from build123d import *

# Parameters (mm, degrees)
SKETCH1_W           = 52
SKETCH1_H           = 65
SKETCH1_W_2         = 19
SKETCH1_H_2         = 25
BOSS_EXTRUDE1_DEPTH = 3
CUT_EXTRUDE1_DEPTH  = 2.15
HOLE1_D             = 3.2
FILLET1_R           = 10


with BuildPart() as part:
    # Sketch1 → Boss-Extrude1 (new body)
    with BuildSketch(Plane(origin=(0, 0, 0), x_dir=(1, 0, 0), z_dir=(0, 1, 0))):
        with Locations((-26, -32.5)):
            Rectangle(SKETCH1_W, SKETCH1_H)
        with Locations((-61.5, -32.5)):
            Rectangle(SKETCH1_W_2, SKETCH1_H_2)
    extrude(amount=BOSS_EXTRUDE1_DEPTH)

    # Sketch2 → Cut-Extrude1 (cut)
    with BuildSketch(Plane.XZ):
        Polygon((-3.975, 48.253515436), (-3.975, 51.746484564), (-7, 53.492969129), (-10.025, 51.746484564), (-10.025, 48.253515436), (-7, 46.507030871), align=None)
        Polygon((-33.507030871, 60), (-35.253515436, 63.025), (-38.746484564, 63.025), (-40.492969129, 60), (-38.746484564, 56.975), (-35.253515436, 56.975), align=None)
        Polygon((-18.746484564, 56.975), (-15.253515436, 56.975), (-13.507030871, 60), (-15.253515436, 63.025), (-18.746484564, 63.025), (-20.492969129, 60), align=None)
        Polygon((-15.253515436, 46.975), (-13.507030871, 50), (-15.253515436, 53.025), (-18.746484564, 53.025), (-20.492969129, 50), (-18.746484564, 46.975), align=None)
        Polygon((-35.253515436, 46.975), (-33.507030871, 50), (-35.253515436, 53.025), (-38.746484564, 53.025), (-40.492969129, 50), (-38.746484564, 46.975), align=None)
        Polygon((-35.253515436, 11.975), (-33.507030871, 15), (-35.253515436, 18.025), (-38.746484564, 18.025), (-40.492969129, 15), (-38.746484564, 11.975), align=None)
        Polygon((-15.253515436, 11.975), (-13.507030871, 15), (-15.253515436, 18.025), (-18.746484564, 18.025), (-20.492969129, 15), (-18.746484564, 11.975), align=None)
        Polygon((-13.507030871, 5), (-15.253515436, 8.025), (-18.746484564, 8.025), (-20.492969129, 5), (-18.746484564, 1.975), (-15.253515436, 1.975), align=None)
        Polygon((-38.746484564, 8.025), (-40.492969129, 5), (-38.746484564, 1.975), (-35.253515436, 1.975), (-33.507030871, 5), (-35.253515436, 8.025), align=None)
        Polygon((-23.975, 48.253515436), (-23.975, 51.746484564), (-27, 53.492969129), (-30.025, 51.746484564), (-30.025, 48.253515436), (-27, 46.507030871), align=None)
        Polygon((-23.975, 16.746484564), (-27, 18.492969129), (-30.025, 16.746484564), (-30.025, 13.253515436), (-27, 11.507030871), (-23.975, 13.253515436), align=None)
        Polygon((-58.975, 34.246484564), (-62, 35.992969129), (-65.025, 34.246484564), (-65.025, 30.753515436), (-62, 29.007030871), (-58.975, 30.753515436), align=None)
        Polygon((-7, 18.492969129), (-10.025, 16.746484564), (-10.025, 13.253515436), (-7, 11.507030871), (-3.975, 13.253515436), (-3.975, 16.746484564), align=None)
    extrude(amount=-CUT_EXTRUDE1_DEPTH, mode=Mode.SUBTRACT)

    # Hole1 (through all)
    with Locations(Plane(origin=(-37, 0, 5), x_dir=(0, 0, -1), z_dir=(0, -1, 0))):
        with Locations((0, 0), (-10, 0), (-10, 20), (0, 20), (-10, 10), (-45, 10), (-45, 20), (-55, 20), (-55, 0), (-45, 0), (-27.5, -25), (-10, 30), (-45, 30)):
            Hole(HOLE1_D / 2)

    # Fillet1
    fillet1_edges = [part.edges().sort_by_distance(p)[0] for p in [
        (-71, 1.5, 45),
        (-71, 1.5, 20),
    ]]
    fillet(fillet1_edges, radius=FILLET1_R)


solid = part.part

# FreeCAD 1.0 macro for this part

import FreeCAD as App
import Part
import Sketcher
Q = App.Units.Quantity


def edges_at(feature, points):
    """Names of the edges that pass closest to the given points."""
    edges = feature.Shape.Edges
    near = lambda p: min(range(len(edges)), key=lambda i: edges[i].distToShape(Part.Vertex(*p))[0])
    return sorted({f"Edge{near(p) + 1}" for p in points})

doc = App.newDocument("Part")
body = doc.addObject("PartDesign::Body", "Body")

sketch1 = doc.addObject("Sketcher::SketchObject", "Sketch")
body.addObject(sketch1)
sketch1.AttachmentSupport = (doc.XZ_Plane, [""])
sketch1.MapMode = "FlatFace"
sketch1.addGeometry(Part.LineSegment(App.Vector(-52, 45, 0), App.Vector(-52, 65, 0)), False)
sketch1.addGeometry(Part.LineSegment(App.Vector(-52, 65, 0), App.Vector(0, 65, 0)), False)
sketch1.addGeometry(Part.LineSegment(App.Vector(0, 65, 0), App.Vector(0, 0, 0)), False)
sketch1.addGeometry(Part.LineSegment(App.Vector(0, 0, 0), App.Vector(-52, 0, 0)), False)
sketch1.addGeometry(Part.LineSegment(App.Vector(-52, 0, 0), App.Vector(-52, 20, 0)), False)
sketch1.addGeometry(Part.LineSegment(App.Vector(-52, 20, 0), App.Vector(-71, 20, 0)), False)
sketch1.addGeometry(Part.LineSegment(App.Vector(-71, 20, 0), App.Vector(-71, 45, 0)), False)
sketch1.addGeometry(Part.LineSegment(App.Vector(-71, 45, 0), App.Vector(-52, 45, 0)), False)
sketch1.addConstraint(Sketcher.Constraint("Coincident", 0, 2, 1, 1))
sketch1.addConstraint(Sketcher.Constraint("Coincident", 1, 2, 2, 1))
sketch1.addConstraint(Sketcher.Constraint("Coincident", 2, 2, 3, 1))
sketch1.addConstraint(Sketcher.Constraint("Coincident", 3, 2, 4, 1))
sketch1.addConstraint(Sketcher.Constraint("Coincident", 4, 2, 5, 1))
sketch1.addConstraint(Sketcher.Constraint("Coincident", 5, 2, 6, 1))
sketch1.addConstraint(Sketcher.Constraint("Coincident", 6, 2, 7, 1))
sketch1.addConstraint(Sketcher.Constraint("Coincident", 7, 2, 0, 1))
sketch1.addConstraint(Sketcher.Constraint("Vertical", 0))
sketch1.addConstraint(Sketcher.Constraint("Horizontal", 1))
sketch1.addConstraint(Sketcher.Constraint("Vertical", 2))
sketch1.addConstraint(Sketcher.Constraint("Horizontal", 3))
sketch1.addConstraint(Sketcher.Constraint("Vertical", 4))
sketch1.addConstraint(Sketcher.Constraint("Horizontal", 5))
sketch1.addConstraint(Sketcher.Constraint("Vertical", 6))
sketch1.addConstraint(Sketcher.Constraint("Horizontal", 7))
sketch1.addConstraint(Sketcher.Constraint("Coincident", 2, 2, -1, 1))
sketch1.addConstraint(Sketcher.Constraint("Vertical", 0, 2, 3, 2))
sketch1.addConstraint(Sketcher.Constraint("Equal", 0, 4))
sketch1.addConstraint(Sketcher.Constraint("DistanceX", 1, 1, 1, 2, Q("52 mm")))
sketch1.addConstraint(Sketcher.Constraint("DistanceX", 5, 2, 5, 1, Q("19 mm")))
sketch1.addConstraint(Sketcher.Constraint("DistanceY", 0, 1, 0, 2, Q("20 mm")))
sketch1.addConstraint(Sketcher.Constraint("DistanceY", 2, 2, 2, 1, Q("65 mm")))
pad1 = doc.addObject("PartDesign::Pad", "Pad")
body.addObject(pad1)
pad1.Profile = sketch1
pad1.Length = 3
pad1.Reversed = True

sketch2 = doc.addObject("Sketcher::SketchObject", "Sketch001")
body.addObject(sketch2)
sketch2.AttachmentSupport = (doc.XZ_Plane, [""])
sketch2.MapMode = "FlatFace"
sketch2.addGeometry(Part.LineSegment(App.Vector(-4, 48.3, 0), App.Vector(-4, 51.7, 0)), False)
sketch2.addGeometry(Part.LineSegment(App.Vector(-4, 51.7, 0), App.Vector(-7, 53.5, 0)), False)
sketch2.addGeometry(Part.LineSegment(App.Vector(-7, 53.5, 0), App.Vector(-10, 51.7, 0)), False)
sketch2.addGeometry(Part.LineSegment(App.Vector(-10, 51.7, 0), App.Vector(-10, 48.3, 0)), False)
sketch2.addGeometry(Part.LineSegment(App.Vector(-10, 48.3, 0), App.Vector(-7, 46.5, 0)), False)
sketch2.addGeometry(Part.LineSegment(App.Vector(-7, 46.5, 0), App.Vector(-4, 48.3, 0)), False)
sketch2.addGeometry(Part.LineSegment(App.Vector(-33.5, 60, 0), App.Vector(-35.3, 63, 0)), False)
sketch2.addGeometry(Part.LineSegment(App.Vector(-35.3, 63, 0), App.Vector(-38.7, 63, 0)), False)
sketch2.addGeometry(Part.LineSegment(App.Vector(-38.7, 63, 0), App.Vector(-40.5, 60, 0)), False)
sketch2.addGeometry(Part.LineSegment(App.Vector(-40.5, 60, 0), App.Vector(-38.7, 57, 0)), False)
sketch2.addGeometry(Part.LineSegment(App.Vector(-38.7, 57, 0), App.Vector(-35.3, 57, 0)), False)
sketch2.addGeometry(Part.LineSegment(App.Vector(-35.3, 57, 0), App.Vector(-33.5, 60, 0)), False)
sketch2.addGeometry(Part.LineSegment(App.Vector(-18.7, 57, 0), App.Vector(-15.3, 57, 0)), False)
sketch2.addGeometry(Part.LineSegment(App.Vector(-15.3, 57, 0), App.Vector(-13.5, 60, 0)), False)
sketch2.addGeometry(Part.LineSegment(App.Vector(-13.5, 60, 0), App.Vector(-15.3, 63, 0)), False)
sketch2.addGeometry(Part.LineSegment(App.Vector(-15.3, 63, 0), App.Vector(-18.7, 63, 0)), False)
sketch2.addGeometry(Part.LineSegment(App.Vector(-18.7, 63, 0), App.Vector(-20.5, 60, 0)), False)
sketch2.addGeometry(Part.LineSegment(App.Vector(-20.5, 60, 0), App.Vector(-18.7, 57, 0)), False)
sketch2.addGeometry(Part.LineSegment(App.Vector(-15.3, 47, 0), App.Vector(-13.5, 50, 0)), False)
sketch2.addGeometry(Part.LineSegment(App.Vector(-13.5, 50, 0), App.Vector(-15.3, 53, 0)), False)
sketch2.addGeometry(Part.LineSegment(App.Vector(-15.3, 53, 0), App.Vector(-18.7, 53, 0)), False)
sketch2.addGeometry(Part.LineSegment(App.Vector(-18.7, 53, 0), App.Vector(-20.5, 50, 0)), False)
sketch2.addGeometry(Part.LineSegment(App.Vector(-20.5, 50, 0), App.Vector(-18.7, 47, 0)), False)
sketch2.addGeometry(Part.LineSegment(App.Vector(-18.7, 47, 0), App.Vector(-15.3, 47, 0)), False)
sketch2.addGeometry(Part.LineSegment(App.Vector(-35.3, 47, 0), App.Vector(-33.5, 50, 0)), False)
sketch2.addGeometry(Part.LineSegment(App.Vector(-33.5, 50, 0), App.Vector(-35.3, 53, 0)), False)
sketch2.addGeometry(Part.LineSegment(App.Vector(-35.3, 53, 0), App.Vector(-38.7, 53, 0)), False)
sketch2.addGeometry(Part.LineSegment(App.Vector(-38.7, 53, 0), App.Vector(-40.5, 50, 0)), False)
sketch2.addGeometry(Part.LineSegment(App.Vector(-40.5, 50, 0), App.Vector(-38.7, 47, 0)), False)
sketch2.addGeometry(Part.LineSegment(App.Vector(-38.7, 47, 0), App.Vector(-35.3, 47, 0)), False)
sketch2.addGeometry(Part.LineSegment(App.Vector(-35.3, 12, 0), App.Vector(-33.5, 15, 0)), False)
sketch2.addGeometry(Part.LineSegment(App.Vector(-33.5, 15, 0), App.Vector(-35.3, 18, 0)), False)
sketch2.addGeometry(Part.LineSegment(App.Vector(-35.3, 18, 0), App.Vector(-38.7, 18, 0)), False)
sketch2.addGeometry(Part.LineSegment(App.Vector(-38.7, 18, 0), App.Vector(-40.5, 15, 0)), False)
sketch2.addGeometry(Part.LineSegment(App.Vector(-40.5, 15, 0), App.Vector(-38.7, 12, 0)), False)
sketch2.addGeometry(Part.LineSegment(App.Vector(-38.7, 12, 0), App.Vector(-35.3, 12, 0)), False)
sketch2.addGeometry(Part.LineSegment(App.Vector(-15.3, 12, 0), App.Vector(-13.5, 15, 0)), False)
sketch2.addGeometry(Part.LineSegment(App.Vector(-13.5, 15, 0), App.Vector(-15.3, 18, 0)), False)
sketch2.addGeometry(Part.LineSegment(App.Vector(-15.3, 18, 0), App.Vector(-18.7, 18, 0)), False)
sketch2.addGeometry(Part.LineSegment(App.Vector(-18.7, 18, 0), App.Vector(-20.5, 15, 0)), False)
sketch2.addGeometry(Part.LineSegment(App.Vector(-20.5, 15, 0), App.Vector(-18.7, 12, 0)), False)
sketch2.addGeometry(Part.LineSegment(App.Vector(-18.7, 12, 0), App.Vector(-15.3, 12, 0)), False)
sketch2.addGeometry(Part.LineSegment(App.Vector(-13.5, 5, 0), App.Vector(-15.3, 8, 0)), False)
sketch2.addGeometry(Part.LineSegment(App.Vector(-15.3, 8, 0), App.Vector(-18.7, 8, 0)), False)
sketch2.addGeometry(Part.LineSegment(App.Vector(-18.7, 8, 0), App.Vector(-20.5, 5, 0)), False)
sketch2.addGeometry(Part.LineSegment(App.Vector(-20.5, 5, 0), App.Vector(-18.7, 2, 0)), False)
sketch2.addGeometry(Part.LineSegment(App.Vector(-18.7, 2, 0), App.Vector(-15.3, 2, 0)), False)
sketch2.addGeometry(Part.LineSegment(App.Vector(-15.3, 2, 0), App.Vector(-13.5, 5, 0)), False)
sketch2.addGeometry(Part.LineSegment(App.Vector(-38.7, 8, 0), App.Vector(-40.5, 5, 0)), False)
sketch2.addGeometry(Part.LineSegment(App.Vector(-40.5, 5, 0), App.Vector(-38.7, 2, 0)), False)
sketch2.addGeometry(Part.LineSegment(App.Vector(-38.7, 2, 0), App.Vector(-35.3, 2, 0)), False)
sketch2.addGeometry(Part.LineSegment(App.Vector(-35.3, 2, 0), App.Vector(-33.5, 5, 0)), False)
sketch2.addGeometry(Part.LineSegment(App.Vector(-33.5, 5, 0), App.Vector(-35.3, 8, 0)), False)
sketch2.addGeometry(Part.LineSegment(App.Vector(-35.3, 8, 0), App.Vector(-38.7, 8, 0)), False)
sketch2.addGeometry(Part.LineSegment(App.Vector(-24, 48.3, 0), App.Vector(-24, 51.7, 0)), False)
sketch2.addGeometry(Part.LineSegment(App.Vector(-24, 51.7, 0), App.Vector(-27, 53.5, 0)), False)
sketch2.addGeometry(Part.LineSegment(App.Vector(-27, 53.5, 0), App.Vector(-30, 51.7, 0)), False)
sketch2.addGeometry(Part.LineSegment(App.Vector(-30, 51.7, 0), App.Vector(-30, 48.3, 0)), False)
sketch2.addGeometry(Part.LineSegment(App.Vector(-30, 48.3, 0), App.Vector(-27, 46.5, 0)), False)
sketch2.addGeometry(Part.LineSegment(App.Vector(-27, 46.5, 0), App.Vector(-24, 48.3, 0)), False)
sketch2.addGeometry(Part.LineSegment(App.Vector(-24, 16.7, 0), App.Vector(-27, 18.5, 0)), False)
sketch2.addGeometry(Part.LineSegment(App.Vector(-27, 18.5, 0), App.Vector(-30, 16.7, 0)), False)
sketch2.addGeometry(Part.LineSegment(App.Vector(-30, 16.7, 0), App.Vector(-30, 13.3, 0)), False)
sketch2.addGeometry(Part.LineSegment(App.Vector(-30, 13.3, 0), App.Vector(-27, 11.5, 0)), False)
sketch2.addGeometry(Part.LineSegment(App.Vector(-27, 11.5, 0), App.Vector(-24, 13.3, 0)), False)
sketch2.addGeometry(Part.LineSegment(App.Vector(-24, 13.3, 0), App.Vector(-24, 16.7, 0)), False)
sketch2.addGeometry(Part.LineSegment(App.Vector(-59, 34.2, 0), App.Vector(-62, 36, 0)), False)
sketch2.addGeometry(Part.LineSegment(App.Vector(-62, 36, 0), App.Vector(-65, 34.2, 0)), False)
sketch2.addGeometry(Part.LineSegment(App.Vector(-65, 34.2, 0), App.Vector(-65, 30.8, 0)), False)
sketch2.addGeometry(Part.LineSegment(App.Vector(-65, 30.8, 0), App.Vector(-62, 29, 0)), False)
sketch2.addGeometry(Part.LineSegment(App.Vector(-62, 29, 0), App.Vector(-59, 30.8, 0)), False)
sketch2.addGeometry(Part.LineSegment(App.Vector(-59, 30.8, 0), App.Vector(-59, 34.2, 0)), False)
sketch2.addGeometry(Part.LineSegment(App.Vector(-7, 18.5, 0), App.Vector(-10, 16.7, 0)), False)
sketch2.addGeometry(Part.LineSegment(App.Vector(-10, 16.7, 0), App.Vector(-10, 13.3, 0)), False)
sketch2.addGeometry(Part.LineSegment(App.Vector(-10, 13.3, 0), App.Vector(-7, 11.5, 0)), False)
sketch2.addGeometry(Part.LineSegment(App.Vector(-7, 11.5, 0), App.Vector(-4, 13.3, 0)), False)
sketch2.addGeometry(Part.LineSegment(App.Vector(-4, 13.3, 0), App.Vector(-4, 16.7, 0)), False)
sketch2.addGeometry(Part.LineSegment(App.Vector(-4, 16.7, 0), App.Vector(-7, 18.5, 0)), False)
sketch2.addConstraint(Sketcher.Constraint("Coincident", 0, 2, 1, 1))
sketch2.addConstraint(Sketcher.Constraint("Coincident", 1, 2, 2, 1))
sketch2.addConstraint(Sketcher.Constraint("Coincident", 2, 2, 3, 1))
sketch2.addConstraint(Sketcher.Constraint("Coincident", 3, 2, 4, 1))
sketch2.addConstraint(Sketcher.Constraint("Coincident", 4, 2, 5, 1))
sketch2.addConstraint(Sketcher.Constraint("Coincident", 5, 2, 0, 1))
sketch2.addConstraint(Sketcher.Constraint("Coincident", 6, 2, 7, 1))
sketch2.addConstraint(Sketcher.Constraint("Coincident", 7, 2, 8, 1))
sketch2.addConstraint(Sketcher.Constraint("Coincident", 8, 2, 9, 1))
sketch2.addConstraint(Sketcher.Constraint("Coincident", 9, 2, 10, 1))
sketch2.addConstraint(Sketcher.Constraint("Coincident", 10, 2, 11, 1))
sketch2.addConstraint(Sketcher.Constraint("Coincident", 11, 2, 6, 1))
sketch2.addConstraint(Sketcher.Constraint("Coincident", 12, 2, 13, 1))
sketch2.addConstraint(Sketcher.Constraint("Coincident", 13, 2, 14, 1))
sketch2.addConstraint(Sketcher.Constraint("Coincident", 14, 2, 15, 1))
sketch2.addConstraint(Sketcher.Constraint("Coincident", 15, 2, 16, 1))
sketch2.addConstraint(Sketcher.Constraint("Coincident", 16, 2, 17, 1))
sketch2.addConstraint(Sketcher.Constraint("Coincident", 17, 2, 12, 1))
sketch2.addConstraint(Sketcher.Constraint("Coincident", 18, 2, 19, 1))
sketch2.addConstraint(Sketcher.Constraint("Coincident", 19, 2, 20, 1))
sketch2.addConstraint(Sketcher.Constraint("Coincident", 20, 2, 21, 1))
sketch2.addConstraint(Sketcher.Constraint("Coincident", 21, 2, 22, 1))
sketch2.addConstraint(Sketcher.Constraint("Coincident", 22, 2, 23, 1))
sketch2.addConstraint(Sketcher.Constraint("Coincident", 23, 2, 18, 1))
sketch2.addConstraint(Sketcher.Constraint("Coincident", 24, 2, 25, 1))
sketch2.addConstraint(Sketcher.Constraint("Coincident", 25, 2, 26, 1))
sketch2.addConstraint(Sketcher.Constraint("Coincident", 26, 2, 27, 1))
sketch2.addConstraint(Sketcher.Constraint("Coincident", 27, 2, 28, 1))
sketch2.addConstraint(Sketcher.Constraint("Coincident", 28, 2, 29, 1))
sketch2.addConstraint(Sketcher.Constraint("Coincident", 29, 2, 24, 1))
sketch2.addConstraint(Sketcher.Constraint("Coincident", 30, 2, 31, 1))
sketch2.addConstraint(Sketcher.Constraint("Coincident", 31, 2, 32, 1))
sketch2.addConstraint(Sketcher.Constraint("Coincident", 32, 2, 33, 1))
sketch2.addConstraint(Sketcher.Constraint("Coincident", 33, 2, 34, 1))
sketch2.addConstraint(Sketcher.Constraint("Coincident", 34, 2, 35, 1))
sketch2.addConstraint(Sketcher.Constraint("Coincident", 35, 2, 30, 1))
sketch2.addConstraint(Sketcher.Constraint("Coincident", 36, 2, 37, 1))
sketch2.addConstraint(Sketcher.Constraint("Coincident", 37, 2, 38, 1))
sketch2.addConstraint(Sketcher.Constraint("Coincident", 38, 2, 39, 1))
sketch2.addConstraint(Sketcher.Constraint("Coincident", 39, 2, 40, 1))
sketch2.addConstraint(Sketcher.Constraint("Coincident", 40, 2, 41, 1))
sketch2.addConstraint(Sketcher.Constraint("Coincident", 41, 2, 36, 1))
sketch2.addConstraint(Sketcher.Constraint("Coincident", 42, 2, 43, 1))
sketch2.addConstraint(Sketcher.Constraint("Coincident", 43, 2, 44, 1))
sketch2.addConstraint(Sketcher.Constraint("Coincident", 44, 2, 45, 1))
sketch2.addConstraint(Sketcher.Constraint("Coincident", 45, 2, 46, 1))
sketch2.addConstraint(Sketcher.Constraint("Coincident", 46, 2, 47, 1))
sketch2.addConstraint(Sketcher.Constraint("Coincident", 47, 2, 42, 1))
sketch2.addConstraint(Sketcher.Constraint("Coincident", 48, 2, 49, 1))
sketch2.addConstraint(Sketcher.Constraint("Coincident", 49, 2, 50, 1))
sketch2.addConstraint(Sketcher.Constraint("Coincident", 50, 2, 51, 1))
sketch2.addConstraint(Sketcher.Constraint("Coincident", 51, 2, 52, 1))
sketch2.addConstraint(Sketcher.Constraint("Coincident", 52, 2, 53, 1))
sketch2.addConstraint(Sketcher.Constraint("Coincident", 53, 2, 48, 1))
sketch2.addConstraint(Sketcher.Constraint("Coincident", 54, 2, 55, 1))
sketch2.addConstraint(Sketcher.Constraint("Coincident", 55, 2, 56, 1))
sketch2.addConstraint(Sketcher.Constraint("Coincident", 56, 2, 57, 1))
sketch2.addConstraint(Sketcher.Constraint("Coincident", 57, 2, 58, 1))
sketch2.addConstraint(Sketcher.Constraint("Coincident", 58, 2, 59, 1))
sketch2.addConstraint(Sketcher.Constraint("Coincident", 59, 2, 54, 1))
sketch2.addConstraint(Sketcher.Constraint("Coincident", 60, 2, 61, 1))
sketch2.addConstraint(Sketcher.Constraint("Coincident", 61, 2, 62, 1))
sketch2.addConstraint(Sketcher.Constraint("Coincident", 62, 2, 63, 1))
sketch2.addConstraint(Sketcher.Constraint("Coincident", 63, 2, 64, 1))
sketch2.addConstraint(Sketcher.Constraint("Coincident", 64, 2, 65, 1))
sketch2.addConstraint(Sketcher.Constraint("Coincident", 65, 2, 60, 1))
sketch2.addConstraint(Sketcher.Constraint("Coincident", 66, 2, 67, 1))
sketch2.addConstraint(Sketcher.Constraint("Coincident", 67, 2, 68, 1))
sketch2.addConstraint(Sketcher.Constraint("Coincident", 68, 2, 69, 1))
sketch2.addConstraint(Sketcher.Constraint("Coincident", 69, 2, 70, 1))
sketch2.addConstraint(Sketcher.Constraint("Coincident", 70, 2, 71, 1))
sketch2.addConstraint(Sketcher.Constraint("Coincident", 71, 2, 66, 1))
sketch2.addConstraint(Sketcher.Constraint("Coincident", 72, 2, 73, 1))
sketch2.addConstraint(Sketcher.Constraint("Coincident", 73, 2, 74, 1))
sketch2.addConstraint(Sketcher.Constraint("Coincident", 74, 2, 75, 1))
sketch2.addConstraint(Sketcher.Constraint("Coincident", 75, 2, 76, 1))
sketch2.addConstraint(Sketcher.Constraint("Coincident", 76, 2, 77, 1))
sketch2.addConstraint(Sketcher.Constraint("Coincident", 77, 2, 72, 1))
sketch2.addConstraint(Sketcher.Constraint("Vertical", 0))
sketch2.addConstraint(Sketcher.Constraint("Vertical", 3))
sketch2.addConstraint(Sketcher.Constraint("Horizontal", 7))
sketch2.addConstraint(Sketcher.Constraint("Horizontal", 10))
sketch2.addConstraint(Sketcher.Constraint("Horizontal", 12))
sketch2.addConstraint(Sketcher.Constraint("Horizontal", 15))
sketch2.addConstraint(Sketcher.Constraint("Horizontal", 20))
sketch2.addConstraint(Sketcher.Constraint("Horizontal", 23))
sketch2.addConstraint(Sketcher.Constraint("Horizontal", 26))
sketch2.addConstraint(Sketcher.Constraint("Horizontal", 29))
sketch2.addConstraint(Sketcher.Constraint("Horizontal", 32))
sketch2.addConstraint(Sketcher.Constraint("Horizontal", 35))
sketch2.addConstraint(Sketcher.Constraint("Horizontal", 38))
sketch2.addConstraint(Sketcher.Constraint("Horizontal", 41))
sketch2.addConstraint(Sketcher.Constraint("Horizontal", 43))
sketch2.addConstraint(Sketcher.Constraint("Horizontal", 46))
sketch2.addConstraint(Sketcher.Constraint("Horizontal", 50))
sketch2.addConstraint(Sketcher.Constraint("Horizontal", 53))
sketch2.addConstraint(Sketcher.Constraint("Vertical", 54))
sketch2.addConstraint(Sketcher.Constraint("Vertical", 57))
sketch2.addConstraint(Sketcher.Constraint("Vertical", 62))
sketch2.addConstraint(Sketcher.Constraint("Vertical", 65))
sketch2.addConstraint(Sketcher.Constraint("Vertical", 68))
sketch2.addConstraint(Sketcher.Constraint("Vertical", 71))
sketch2.addConstraint(Sketcher.Constraint("Vertical", 73))
sketch2.addConstraint(Sketcher.Constraint("Vertical", 76))
sketch2.addConstraint(Sketcher.Constraint("Parallel", 1, 4))
sketch2.addConstraint(Sketcher.Constraint("Parallel", 2, 5))
sketch2.addConstraint(Sketcher.Constraint("Perpendicular", 5, 6))
sketch2.addConstraint(Sketcher.Constraint("Perpendicular", 4, 8))
sketch2.addConstraint(Sketcher.Constraint("Parallel", 6, 9))
sketch2.addConstraint(Sketcher.Constraint("Parallel", 8, 11))
sketch2.addConstraint(Sketcher.Constraint("Parallel", 11, 13))
sketch2.addConstraint(Sketcher.Constraint("Parallel", 9, 14))
sketch2.addConstraint(Sketcher.Constraint("Parallel", 13, 16))
sketch2.addConstraint(Sketcher.Constraint("Parallel", 14, 17))
sketch2.addConstraint(Sketcher.Constraint("Parallel", 16, 18))
sketch2.addConstraint(Sketcher.Constraint("Parallel", 17, 19))
sketch2.addConstraint(Sketcher.Constraint("Parallel", 18, 21))
sketch2.addConstraint(Sketcher.Constraint("Parallel", 19, 22))
sketch2.addConstraint(Sketcher.Constraint("Parallel", 21, 24))
sketch2.addConstraint(Sketcher.Constraint("Parallel", 22, 25))
sketch2.addConstraint(Sketcher.Constraint("Parallel", 24, 27))
sketch2.addConstraint(Sketcher.Constraint("Parallel", 25, 28))
sketch2.addConstraint(Sketcher.Constraint("Parallel", 27, 30))
sketch2.addConstraint(Sketcher.Constraint("Parallel", 28, 31))
sketch2.addConstraint(Sketcher.Constraint("Parallel", 30, 33))
sketch2.addConstraint(Sketcher.Constraint("Parallel", 31, 34))
sketch2.addConstraint(Sketcher.Constraint("Parallel", 33, 36))
sketch2.addConstraint(Sketcher.Constraint("Parallel", 34, 37))
sketch2.addConstraint(Sketcher.Constraint("Parallel", 36, 39))
sketch2.addConstraint(Sketcher.Constraint("Parallel", 37, 40))
sketch2.addConstraint(Sketcher.Constraint("Parallel", 40, 42))
sketch2.addConstraint(Sketcher.Constraint("Parallel", 39, 44))
sketch2.addConstraint(Sketcher.Constraint("Parallel", 42, 45))
sketch2.addConstraint(Sketcher.Constraint("Parallel", 44, 47))
sketch2.addConstraint(Sketcher.Constraint("Parallel", 47, 48))
sketch2.addConstraint(Sketcher.Constraint("Parallel", 45, 49))
sketch2.addConstraint(Sketcher.Constraint("Parallel", 48, 51))
sketch2.addConstraint(Sketcher.Constraint("Parallel", 49, 52))
sketch2.addConstraint(Sketcher.Constraint("Perpendicular", 51, 55))
sketch2.addConstraint(Sketcher.Constraint("Perpendicular", 52, 56))
sketch2.addConstraint(Sketcher.Constraint("Parallel", 55, 58))
sketch2.addConstraint(Sketcher.Constraint("Parallel", 56, 59))
sketch2.addConstraint(Sketcher.Constraint("Parallel", 58, 60))
sketch2.addConstraint(Sketcher.Constraint("Parallel", 59, 61))
sketch2.addConstraint(Sketcher.Constraint("Parallel", 60, 63))
sketch2.addConstraint(Sketcher.Constraint("Parallel", 61, 64))
sketch2.addConstraint(Sketcher.Constraint("Parallel", 63, 66))
sketch2.addConstraint(Sketcher.Constraint("Parallel", 64, 67))
sketch2.addConstraint(Sketcher.Constraint("Parallel", 66, 69))
sketch2.addConstraint(Sketcher.Constraint("Parallel", 67, 70))
sketch2.addConstraint(Sketcher.Constraint("Parallel", 70, 72))
sketch2.addConstraint(Sketcher.Constraint("Parallel", 69, 74))
sketch2.addConstraint(Sketcher.Constraint("Parallel", 72, 75))
sketch2.addConstraint(Sketcher.Constraint("Parallel", 74, 77))
sketch2.addConstraint(Sketcher.Constraint("Horizontal", 0, 2, 2, 2))
sketch2.addConstraint(Sketcher.Constraint("Horizontal", 3, 2, 5, 2))
sketch2.addConstraint(Sketcher.Constraint("Horizontal", 8, 2, 11, 2))
sketch2.addConstraint(Sketcher.Constraint("Horizontal", 10, 2, 12, 2))
sketch2.addConstraint(Sketcher.Constraint("Horizontal", 11, 2, 13, 2))
sketch2.addConstraint(Sketcher.Constraint("Horizontal", 7, 2, 14, 2))
sketch2.addConstraint(Sketcher.Constraint("Horizontal", 13, 2, 16, 2))
sketch2.addConstraint(Sketcher.Constraint("Horizontal", 18, 2, 21, 2))
sketch2.addConstraint(Sketcher.Constraint("Horizontal", 21, 2, 24, 2))
sketch2.addConstraint(Sketcher.Constraint("Horizontal", 20, 2, 25, 2))
sketch2.addConstraint(Sketcher.Constraint("Horizontal", 24, 2, 27, 2))
sketch2.addConstraint(Sketcher.Constraint("Horizontal", 23, 2, 28, 2))
sketch2.addConstraint(Sketcher.Constraint("Horizontal", 30, 2, 33, 2))
sketch2.addConstraint(Sketcher.Constraint("Horizontal", 33, 2, 36, 2))
sketch2.addConstraint(Sketcher.Constraint("Horizontal", 32, 2, 37, 2))
sketch2.addConstraint(Sketcher.Constraint("Horizontal", 36, 2, 39, 2))
sketch2.addConstraint(Sketcher.Constraint("Horizontal", 35, 2, 40, 2))
sketch2.addConstraint(Sketcher.Constraint("Horizontal", 44, 2, 47, 2))
sketch2.addConstraint(Sketcher.Constraint("Horizontal", 47, 2, 48, 2))
sketch2.addConstraint(Sketcher.Constraint("Horizontal", 46, 2, 49, 2))
sketch2.addConstraint(Sketcher.Constraint("Horizontal", 48, 2, 51, 2))
sketch2.addConstraint(Sketcher.Constraint("Horizontal", 43, 2, 52, 2))
sketch2.addConstraint(Sketcher.Constraint("Horizontal", 2, 2, 54, 2))
sketch2.addConstraint(Sketcher.Constraint("Horizontal", 1, 2, 55, 2))
sketch2.addConstraint(Sketcher.Constraint("Horizontal", 54, 2, 56, 2))
sketch2.addConstraint(Sketcher.Constraint("Horizontal", 5, 2, 57, 2))
sketch2.addConstraint(Sketcher.Constraint("Horizontal", 4, 2, 58, 2))
sketch2.addConstraint(Sketcher.Constraint("Horizontal", 62, 2, 64, 2))
sketch2.addConstraint(Sketcher.Constraint("Horizontal", 61, 2, 65, 2))
sketch2.addConstraint(Sketcher.Constraint("Horizontal", 68, 2, 70, 2))
sketch2.addConstraint(Sketcher.Constraint("Horizontal", 67, 2, 71, 2))
sketch2.addConstraint(Sketcher.Constraint("Horizontal", 65, 2, 72, 2))
sketch2.addConstraint(Sketcher.Constraint("Horizontal", 64, 2, 73, 2))
sketch2.addConstraint(Sketcher.Constraint("Horizontal", 63, 2, 74, 2))
sketch2.addConstraint(Sketcher.Constraint("Horizontal", 73, 2, 75, 2))
sketch2.addConstraint(Sketcher.Constraint("Horizontal", 72, 2, 76, 2))
sketch2.addConstraint(Sketcher.Constraint("Vertical", 1, 2, 4, 2))
sketch2.addConstraint(Sketcher.Constraint("Vertical", 7, 2, 9, 2))
sketch2.addConstraint(Sketcher.Constraint("Vertical", 13, 2, 18, 2))
sketch2.addConstraint(Sketcher.Constraint("Vertical", 14, 2, 19, 2))
sketch2.addConstraint(Sketcher.Constraint("Vertical", 17, 2, 20, 2))
sketch2.addConstraint(Sketcher.Constraint("Vertical", 20, 2, 22, 2))
sketch2.addConstraint(Sketcher.Constraint("Vertical", 11, 2, 24, 2))
sketch2.addConstraint(Sketcher.Constraint("Vertical", 9, 2, 26, 2))
sketch2.addConstraint(Sketcher.Constraint("Vertical", 24, 2, 30, 2))
sketch2.addConstraint(Sketcher.Constraint("Vertical", 29, 2, 31, 2))
sketch2.addConstraint(Sketcher.Constraint("Vertical", 28, 2, 32, 2))
sketch2.addConstraint(Sketcher.Constraint("Vertical", 32, 2, 34, 2))
sketch2.addConstraint(Sketcher.Constraint("Vertical", 18, 2, 36, 2))
sketch2.addConstraint(Sketcher.Constraint("Vertical", 22, 2, 38, 2))
sketch2.addConstraint(Sketcher.Constraint("Vertical", 41, 2, 42, 2))
sketch2.addConstraint(Sketcher.Constraint("Vertical", 40, 2, 43, 2))
sketch2.addConstraint(Sketcher.Constraint("Vertical", 39, 2, 44, 2))
sketch2.addConstraint(Sketcher.Constraint("Vertical", 43, 2, 45, 2))
sketch2.addConstraint(Sketcher.Constraint("Vertical", 33, 2, 48, 2))
sketch2.addConstraint(Sketcher.Constraint("Vertical", 35, 2, 50, 2))
sketch2.addConstraint(Sketcher.Constraint("Vertical", 58, 2, 60, 2))
sketch2.addConstraint(Sketcher.Constraint("Vertical", 57, 2, 61, 2))
sketch2.addConstraint(Sketcher.Constraint("Vertical", 3, 2, 72, 2))
sketch2.addConstraint(Sketcher.Constraint("Equal", 10, 12))
sketch2.addConstraint(Sketcher.Constraint("Equal", 53, 0))
sketch2.addConstraint(Sketcher.Constraint("Equal", 57, 62))
sketch2.addConstraint(Sketcher.Constraint("Equal", 65, 68))
sketch2.addConstraint(Sketcher.Constraint("Equal", 5, 6))
sketch2.addConstraint(Sketcher.Constraint("Equal", 64, 66))
sketch2.addConstraint(Sketcher.Constraint("Angle", 1, Q("150 deg")))
sketch2.addConstraint(Sketcher.Constraint("DistanceX", 1, 2, -1, 1, Q("7 mm")))
sketch2.addConstraint(Sketcher.Constraint("DistanceY", -1, 1, 8, 2, Q("60 mm")))
sketch2.addConstraint(Sketcher.Constraint("DistanceY", -1, 1, 18, 2, Q("50 mm")))
sketch2.addConstraint(Sketcher.Constraint("DistanceY", -1, 1, 30, 2, Q("15 mm")))
sketch2.addConstraint(Sketcher.Constraint("DistanceY", -1, 1, 44, 2, Q("5 mm")))
sketch2.addConstraint(Sketcher.Constraint("DistanceX", 55, 2, -1, 1, Q("27 mm")))
sketch2.addConstraint(Sketcher.Constraint("DistanceX", 66, 2, -1, 1, Q("62 mm")))
sketch2.addConstraint(Sketcher.Constraint("DistanceX", 0, 2, -1, 1, Q("3.975 mm")))
sketch2.addConstraint(Sketcher.Constraint("DistanceX", 7, 2, 7, 1, Q("3.492969 mm")))
sketch2.addConstraint(Sketcher.Constraint("DistanceY", -1, 1, 1, 2, Q("53.492969 mm")))
sketch2.addConstraint(Sketcher.Constraint("DistanceX", 8, 2, -1, 1, Q("40.492969 mm")))
sketch2.addConstraint(Sketcher.Constraint("DistanceX", 13, 2, -1, 1, Q("13.507031 mm")))
sketch2.addConstraint(Sketcher.Constraint("DistanceY", -1, 1, 60, 2, Q("18.492969 mm")))
sketch2.addConstraint(Sketcher.Constraint("DistanceY", -1, 1, 66, 2, Q("35.992969 mm")))
pocket1 = doc.addObject("PartDesign::Pocket", "Pocket")
body.addObject(pocket1)
pocket1.Profile = sketch2
pocket1.Length = 2.15

sketch3 = doc.addObject("Sketcher::SketchObject", "Sketch002")
body.addObject(sketch3)
sketch3.AttachmentSupport = (doc.XZ_Plane, [""])
sketch3.MapMode = "FlatFace"
sketch3.addGeometry(Part.Circle(App.Vector(-37, 5, 0), App.Vector(0, 0, 1), 1.6), False)
sketch3.addGeometry(Part.Circle(App.Vector(-37, 15, 0), App.Vector(0, 0, 1), 1.6), False)
sketch3.addGeometry(Part.Circle(App.Vector(-17, 15, 0), App.Vector(0, 0, 1), 1.6), False)
sketch3.addGeometry(Part.Circle(App.Vector(-17, 5, 0), App.Vector(0, 0, 1), 1.6), False)
sketch3.addGeometry(Part.Circle(App.Vector(-27, 15, 0), App.Vector(0, 0, 1), 1.6), False)
sketch3.addGeometry(Part.Circle(App.Vector(-27, 50, 0), App.Vector(0, 0, 1), 1.6), False)
sketch3.addGeometry(Part.Circle(App.Vector(-17, 50, 0), App.Vector(0, 0, 1), 1.6), False)
sketch3.addGeometry(Part.Circle(App.Vector(-17, 60, 0), App.Vector(0, 0, 1), 1.6), False)
sketch3.addGeometry(Part.Circle(App.Vector(-37, 60, 0), App.Vector(0, 0, 1), 1.6), False)
sketch3.addGeometry(Part.Circle(App.Vector(-37, 50, 0), App.Vector(0, 0, 1), 1.6), False)
sketch3.addGeometry(Part.Circle(App.Vector(-62, 32.5, 0), App.Vector(0, 0, 1), 1.6), False)
sketch3.addGeometry(Part.Circle(App.Vector(-7, 15, 0), App.Vector(0, 0, 1), 1.6), False)
sketch3.addGeometry(Part.Circle(App.Vector(-7, 50, 0), App.Vector(0, 0, 1), 1.6), False)
sketch3.addConstraint(Sketcher.Constraint("Equal", 0, 1))
sketch3.addConstraint(Sketcher.Constraint("Equal", 1, 2))
sketch3.addConstraint(Sketcher.Constraint("Equal", 2, 3))
sketch3.addConstraint(Sketcher.Constraint("Equal", 3, 4))
sketch3.addConstraint(Sketcher.Constraint("Equal", 4, 5))
sketch3.addConstraint(Sketcher.Constraint("Equal", 5, 6))
sketch3.addConstraint(Sketcher.Constraint("Equal", 6, 7))
sketch3.addConstraint(Sketcher.Constraint("Equal", 7, 8))
sketch3.addConstraint(Sketcher.Constraint("Equal", 8, 9))
sketch3.addConstraint(Sketcher.Constraint("Equal", 9, 10))
sketch3.addConstraint(Sketcher.Constraint("Equal", 10, 11))
sketch3.addConstraint(Sketcher.Constraint("Equal", 11, 12))
sketch3.addConstraint(Sketcher.Constraint("Horizontal", 1, 3, 2, 3))
sketch3.addConstraint(Sketcher.Constraint("Horizontal", 0, 3, 3, 3))
sketch3.addConstraint(Sketcher.Constraint("Horizontal", 2, 3, 4, 3))
sketch3.addConstraint(Sketcher.Constraint("Horizontal", 5, 3, 6, 3))
sketch3.addConstraint(Sketcher.Constraint("Horizontal", 7, 3, 8, 3))
sketch3.addConstraint(Sketcher.Constraint("Horizontal", 6, 3, 9, 3))
sketch3.addConstraint(Sketcher.Constraint("Horizontal", 4, 3, 11, 3))
sketch3.addConstraint(Sketcher.Constraint("Horizontal", 9, 3, 12, 3))
sketch3.addConstraint(Sketcher.Constraint("Vertical", 0, 3, 1, 3))
sketch3.addConstraint(Sketcher.Constraint("Vertical", 2, 3, 3, 3))
sketch3.addConstraint(Sketcher.Constraint("Vertical", 4, 3, 5, 3))
sketch3.addConstraint(Sketcher.Constraint("Vertical", 3, 3, 6, 3))
sketch3.addConstraint(Sketcher.Constraint("Vertical", 6, 3, 7, 3))
sketch3.addConstraint(Sketcher.Constraint("Vertical", 1, 3, 8, 3))
sketch3.addConstraint(Sketcher.Constraint("Vertical", 8, 3, 9, 3))
sketch3.addConstraint(Sketcher.Constraint("Vertical", 11, 3, 12, 3))
sketch3.addConstraint(Sketcher.Constraint("Diameter", 0, Q("3.2 mm")))
sketch3.addConstraint(Sketcher.Constraint("DistanceX", 0, 3, -1, 1, Q("37 mm")))
sketch3.addConstraint(Sketcher.Constraint("DistanceY", -1, 1, 0, 3, Q("5 mm")))
sketch3.addConstraint(Sketcher.Constraint("DistanceY", -1, 1, 1, 3, Q("15 mm")))
sketch3.addConstraint(Sketcher.Constraint("DistanceX", 2, 3, -1, 1, Q("17 mm")))
sketch3.addConstraint(Sketcher.Constraint("DistanceX", 4, 3, -1, 1, Q("27 mm")))
sketch3.addConstraint(Sketcher.Constraint("DistanceY", -1, 1, 5, 3, Q("50 mm")))
sketch3.addConstraint(Sketcher.Constraint("DistanceY", -1, 1, 7, 3, Q("60 mm")))
sketch3.addConstraint(Sketcher.Constraint("DistanceX", 10, 3, -1, 1, Q("62 mm")))
sketch3.addConstraint(Sketcher.Constraint("DistanceX", 11, 3, -1, 1, Q("7 mm")))
sketch3.addConstraint(Sketcher.Constraint("DistanceY", -1, 1, 10, 3, Q("32.5 mm")))
doc.recompute()
hole = doc.addObject("PartDesign::Hole", "Hole")
body.addObject(hole)
hole.Profile = sketch3
hole.ThreadType = "None"
hole.Diameter = 3.2
hole.DepthType = "ThroughAll"
doc.recompute()

fillet = doc.addObject("PartDesign::Fillet", "Fillet")
body.addObject(fillet)
fillet.Base = (hole, edges_at(hole, [(-71, 1.5, 45), (-71, 1.5, 20)]))
fillet.Radius = 10

doc.recompute()
